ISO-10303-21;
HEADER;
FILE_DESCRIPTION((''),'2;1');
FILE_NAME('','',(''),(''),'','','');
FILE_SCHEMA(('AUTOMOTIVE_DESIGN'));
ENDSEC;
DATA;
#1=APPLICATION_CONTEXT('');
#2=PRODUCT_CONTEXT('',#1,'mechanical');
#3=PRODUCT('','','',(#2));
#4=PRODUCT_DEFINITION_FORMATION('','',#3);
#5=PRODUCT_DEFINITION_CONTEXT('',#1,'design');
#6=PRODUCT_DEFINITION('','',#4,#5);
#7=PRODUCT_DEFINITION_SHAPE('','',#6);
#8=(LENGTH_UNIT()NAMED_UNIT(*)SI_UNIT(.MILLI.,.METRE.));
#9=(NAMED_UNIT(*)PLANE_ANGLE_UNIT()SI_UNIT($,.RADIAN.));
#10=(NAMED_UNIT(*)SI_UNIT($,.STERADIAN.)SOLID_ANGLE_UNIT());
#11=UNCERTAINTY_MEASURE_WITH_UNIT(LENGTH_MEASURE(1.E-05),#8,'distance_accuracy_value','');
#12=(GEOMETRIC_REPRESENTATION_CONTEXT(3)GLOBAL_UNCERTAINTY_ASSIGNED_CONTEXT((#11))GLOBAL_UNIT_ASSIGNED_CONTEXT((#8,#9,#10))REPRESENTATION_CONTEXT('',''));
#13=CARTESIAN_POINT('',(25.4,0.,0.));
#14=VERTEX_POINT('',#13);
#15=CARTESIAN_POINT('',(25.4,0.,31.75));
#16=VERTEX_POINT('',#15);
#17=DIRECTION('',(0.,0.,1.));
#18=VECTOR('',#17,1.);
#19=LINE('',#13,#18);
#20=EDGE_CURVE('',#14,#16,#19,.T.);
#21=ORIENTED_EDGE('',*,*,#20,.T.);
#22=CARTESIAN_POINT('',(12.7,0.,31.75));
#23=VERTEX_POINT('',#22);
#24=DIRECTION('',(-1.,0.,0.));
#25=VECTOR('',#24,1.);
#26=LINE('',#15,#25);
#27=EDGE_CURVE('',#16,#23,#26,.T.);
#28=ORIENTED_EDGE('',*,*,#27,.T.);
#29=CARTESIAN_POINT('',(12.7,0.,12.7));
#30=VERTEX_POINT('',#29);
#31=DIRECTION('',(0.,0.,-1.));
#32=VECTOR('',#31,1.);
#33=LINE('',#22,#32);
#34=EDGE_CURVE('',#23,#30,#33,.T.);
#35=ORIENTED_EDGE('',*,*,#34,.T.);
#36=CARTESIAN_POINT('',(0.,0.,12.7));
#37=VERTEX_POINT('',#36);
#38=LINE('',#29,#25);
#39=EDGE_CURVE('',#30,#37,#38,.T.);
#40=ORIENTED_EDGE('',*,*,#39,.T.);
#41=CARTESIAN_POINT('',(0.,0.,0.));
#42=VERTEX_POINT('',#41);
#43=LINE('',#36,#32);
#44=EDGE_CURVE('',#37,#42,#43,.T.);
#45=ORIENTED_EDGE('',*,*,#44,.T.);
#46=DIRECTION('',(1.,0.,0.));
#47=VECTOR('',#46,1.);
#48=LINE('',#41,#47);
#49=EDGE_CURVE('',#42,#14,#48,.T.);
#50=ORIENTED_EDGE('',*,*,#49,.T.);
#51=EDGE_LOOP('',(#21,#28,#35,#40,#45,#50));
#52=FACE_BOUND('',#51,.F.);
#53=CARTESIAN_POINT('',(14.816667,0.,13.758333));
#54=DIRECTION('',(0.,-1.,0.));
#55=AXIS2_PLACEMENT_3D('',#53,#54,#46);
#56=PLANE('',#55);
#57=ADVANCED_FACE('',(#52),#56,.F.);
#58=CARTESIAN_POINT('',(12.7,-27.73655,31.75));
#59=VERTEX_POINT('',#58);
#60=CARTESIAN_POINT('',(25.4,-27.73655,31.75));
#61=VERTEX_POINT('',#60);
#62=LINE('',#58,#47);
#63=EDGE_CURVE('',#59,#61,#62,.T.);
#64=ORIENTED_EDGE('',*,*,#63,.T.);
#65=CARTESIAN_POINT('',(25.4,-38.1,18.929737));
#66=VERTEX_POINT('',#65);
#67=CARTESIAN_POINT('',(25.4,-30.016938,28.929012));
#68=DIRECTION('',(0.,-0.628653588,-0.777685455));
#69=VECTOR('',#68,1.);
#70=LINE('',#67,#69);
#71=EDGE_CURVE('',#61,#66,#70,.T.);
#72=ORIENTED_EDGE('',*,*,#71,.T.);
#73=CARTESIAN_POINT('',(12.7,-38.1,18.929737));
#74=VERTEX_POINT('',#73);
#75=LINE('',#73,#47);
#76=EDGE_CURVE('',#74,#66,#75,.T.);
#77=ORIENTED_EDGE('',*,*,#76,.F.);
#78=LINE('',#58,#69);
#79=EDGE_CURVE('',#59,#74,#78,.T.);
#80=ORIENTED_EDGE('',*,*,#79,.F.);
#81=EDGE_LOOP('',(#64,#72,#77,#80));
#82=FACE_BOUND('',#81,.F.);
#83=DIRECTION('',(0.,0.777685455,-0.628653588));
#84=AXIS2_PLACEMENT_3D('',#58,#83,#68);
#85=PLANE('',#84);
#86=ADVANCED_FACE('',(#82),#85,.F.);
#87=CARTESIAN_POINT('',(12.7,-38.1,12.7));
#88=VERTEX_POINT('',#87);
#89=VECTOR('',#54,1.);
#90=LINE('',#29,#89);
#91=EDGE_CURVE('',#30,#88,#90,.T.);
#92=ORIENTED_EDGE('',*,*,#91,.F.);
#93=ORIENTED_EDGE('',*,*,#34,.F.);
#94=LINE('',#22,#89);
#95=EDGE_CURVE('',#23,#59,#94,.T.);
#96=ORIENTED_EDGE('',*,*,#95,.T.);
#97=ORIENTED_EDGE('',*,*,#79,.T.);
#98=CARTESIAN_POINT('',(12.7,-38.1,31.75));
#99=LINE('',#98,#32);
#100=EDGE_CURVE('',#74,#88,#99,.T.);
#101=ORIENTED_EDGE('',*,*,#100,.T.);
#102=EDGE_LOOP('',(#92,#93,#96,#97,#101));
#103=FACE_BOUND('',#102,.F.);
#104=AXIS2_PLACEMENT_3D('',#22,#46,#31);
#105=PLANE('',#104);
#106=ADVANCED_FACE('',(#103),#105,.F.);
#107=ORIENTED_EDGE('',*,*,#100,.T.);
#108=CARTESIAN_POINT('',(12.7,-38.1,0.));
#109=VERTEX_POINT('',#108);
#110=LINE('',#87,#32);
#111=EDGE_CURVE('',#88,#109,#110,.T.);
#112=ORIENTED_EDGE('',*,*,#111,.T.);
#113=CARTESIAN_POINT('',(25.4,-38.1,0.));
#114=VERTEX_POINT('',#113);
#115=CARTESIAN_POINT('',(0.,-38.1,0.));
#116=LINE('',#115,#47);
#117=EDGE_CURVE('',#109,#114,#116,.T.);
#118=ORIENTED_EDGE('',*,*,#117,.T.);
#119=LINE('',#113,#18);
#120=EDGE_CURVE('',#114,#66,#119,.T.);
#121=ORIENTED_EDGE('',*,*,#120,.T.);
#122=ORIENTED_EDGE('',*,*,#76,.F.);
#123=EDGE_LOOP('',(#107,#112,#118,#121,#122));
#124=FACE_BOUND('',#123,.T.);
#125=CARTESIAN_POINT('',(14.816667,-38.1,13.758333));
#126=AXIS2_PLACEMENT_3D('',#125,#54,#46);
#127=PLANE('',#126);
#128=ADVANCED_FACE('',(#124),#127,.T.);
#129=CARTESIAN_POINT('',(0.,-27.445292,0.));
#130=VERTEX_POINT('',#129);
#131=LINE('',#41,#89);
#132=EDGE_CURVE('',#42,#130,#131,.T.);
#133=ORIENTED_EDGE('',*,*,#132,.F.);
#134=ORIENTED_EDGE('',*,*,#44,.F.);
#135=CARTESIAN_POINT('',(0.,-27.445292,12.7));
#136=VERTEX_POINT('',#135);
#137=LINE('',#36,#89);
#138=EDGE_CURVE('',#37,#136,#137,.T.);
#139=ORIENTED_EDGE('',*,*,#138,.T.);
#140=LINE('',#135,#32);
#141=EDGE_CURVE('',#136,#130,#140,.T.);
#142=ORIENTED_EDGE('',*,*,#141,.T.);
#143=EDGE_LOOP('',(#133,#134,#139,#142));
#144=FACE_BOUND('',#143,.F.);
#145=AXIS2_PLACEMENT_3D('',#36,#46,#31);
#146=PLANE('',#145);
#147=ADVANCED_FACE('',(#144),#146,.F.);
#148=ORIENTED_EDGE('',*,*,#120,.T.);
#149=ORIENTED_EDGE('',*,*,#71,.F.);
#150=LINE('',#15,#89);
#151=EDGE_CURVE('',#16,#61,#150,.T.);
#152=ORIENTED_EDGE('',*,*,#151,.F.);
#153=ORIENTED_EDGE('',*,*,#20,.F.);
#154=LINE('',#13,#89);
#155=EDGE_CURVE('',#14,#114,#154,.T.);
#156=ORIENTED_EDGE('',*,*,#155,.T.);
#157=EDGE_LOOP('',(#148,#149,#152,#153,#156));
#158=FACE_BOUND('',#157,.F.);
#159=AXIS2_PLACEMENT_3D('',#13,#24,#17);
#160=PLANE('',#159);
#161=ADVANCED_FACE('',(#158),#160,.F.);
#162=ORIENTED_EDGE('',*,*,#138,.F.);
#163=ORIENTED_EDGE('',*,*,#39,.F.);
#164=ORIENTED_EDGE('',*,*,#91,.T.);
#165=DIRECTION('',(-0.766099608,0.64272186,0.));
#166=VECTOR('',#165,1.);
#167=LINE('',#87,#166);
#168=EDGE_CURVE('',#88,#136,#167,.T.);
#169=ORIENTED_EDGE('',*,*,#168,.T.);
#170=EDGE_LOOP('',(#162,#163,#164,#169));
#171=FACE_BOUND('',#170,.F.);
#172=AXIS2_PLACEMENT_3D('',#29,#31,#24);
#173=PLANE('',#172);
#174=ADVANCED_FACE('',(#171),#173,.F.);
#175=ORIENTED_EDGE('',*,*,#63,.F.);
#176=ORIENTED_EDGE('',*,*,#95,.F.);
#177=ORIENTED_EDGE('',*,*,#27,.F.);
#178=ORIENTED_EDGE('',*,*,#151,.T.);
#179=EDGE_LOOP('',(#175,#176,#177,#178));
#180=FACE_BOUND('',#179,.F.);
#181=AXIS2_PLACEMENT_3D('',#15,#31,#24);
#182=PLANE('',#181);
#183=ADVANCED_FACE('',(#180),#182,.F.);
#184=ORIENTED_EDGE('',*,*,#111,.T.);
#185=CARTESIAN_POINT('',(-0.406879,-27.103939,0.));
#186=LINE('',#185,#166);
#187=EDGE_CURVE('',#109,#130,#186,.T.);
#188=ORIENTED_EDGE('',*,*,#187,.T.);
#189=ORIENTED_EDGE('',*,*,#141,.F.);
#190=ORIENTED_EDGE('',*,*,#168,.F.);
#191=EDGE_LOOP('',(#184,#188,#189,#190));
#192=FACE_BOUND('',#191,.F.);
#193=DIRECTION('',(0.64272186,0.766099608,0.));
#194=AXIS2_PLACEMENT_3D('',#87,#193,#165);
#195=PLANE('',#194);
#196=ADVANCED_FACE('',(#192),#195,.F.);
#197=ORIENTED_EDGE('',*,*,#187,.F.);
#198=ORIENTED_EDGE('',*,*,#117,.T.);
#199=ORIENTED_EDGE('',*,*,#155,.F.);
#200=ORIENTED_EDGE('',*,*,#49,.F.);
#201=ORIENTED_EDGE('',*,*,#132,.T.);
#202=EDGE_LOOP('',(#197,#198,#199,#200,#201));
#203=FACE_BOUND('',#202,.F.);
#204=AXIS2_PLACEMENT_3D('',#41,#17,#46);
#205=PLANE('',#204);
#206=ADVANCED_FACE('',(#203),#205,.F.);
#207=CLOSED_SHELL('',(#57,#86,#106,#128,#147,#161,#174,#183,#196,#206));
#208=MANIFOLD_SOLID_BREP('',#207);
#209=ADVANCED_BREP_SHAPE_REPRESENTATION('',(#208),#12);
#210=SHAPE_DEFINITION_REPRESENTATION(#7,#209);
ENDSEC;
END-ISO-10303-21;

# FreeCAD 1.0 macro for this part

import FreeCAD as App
import Part
import Sketcher

V = App.Vector
Q = App.Units.Quantity

doc = App.newDocument("Part")
params = doc.addObject("Spreadsheet::Sheet", "Params")
for row, (alias, value) in enumerate([
    ("sketch1_width", "1 in"),
    ("sketch1_height", "1.25 in"),
    ("pad1_length", "1.5 in"),
    ("sketch2_width", "0.5 in"),
    ("pocket1_length", "1 in"),
    ("pocket2_length", "1 in"),
], start=1):
    params.set(f"A{row}", alias)
    params.set(f"B{row}", "=" + value)
    params.setAlias(f"B{row}", alias)

body = doc.addObject("PartDesign::Body", "Body")

# Sketch on XZ plane
sketch1 = doc.addObject("Sketcher::SketchObject", "Sketch")
body.addObject(sketch1)
sketch1.AttachmentSupport = (doc.XZ_Plane, [""])
sketch1.MapMode = "FlatFace"
sketch1.addGeometry([
    Part.LineSegment(V(0, 13, 0), V(0, 0, 0)),  # 0
    Part.LineSegment(V(0, 0, 0), V(25, 0, 0)),  # 1
    Part.LineSegment(V(25, 0, 0), V(25, 32, 0)),  # 2
    Part.LineSegment(V(25, 32, 0), V(13, 32, 0)),  # 3
    Part.LineSegment(V(13, 32, 0), V(13, 13, 0)),  # 4
    Part.LineSegment(V(13, 13, 0), V(0, 13, 0)),  # 5
], False)
sketch1.addConstraint([
    Sketcher.Constraint("Coincident", 0, 2, 1, 1),
    Sketcher.Constraint("Coincident", 1, 2, 2, 1),
    Sketcher.Constraint("Coincident", 2, 2, 3, 1),
    Sketcher.Constraint("Coincident", 3, 2, 4, 1),
    Sketcher.Constraint("Coincident", 4, 2, 5, 1),
    Sketcher.Constraint("Coincident", 5, 2, 0, 1),
    Sketcher.Constraint("Vertical", 0),
    Sketcher.Constraint("Horizontal", 1),
    Sketcher.Constraint("Vertical", 2),
    Sketcher.Constraint("Horizontal", 3),
    Sketcher.Constraint("Vertical", 4),
    Sketcher.Constraint("Horizontal", 5),
    Sketcher.Constraint("Coincident", 0, 2, -1, 1),
    Sketcher.Constraint("Equal", 3, 5),
    Sketcher.Constraint("Equal", 5, 0),
    Sketcher.Constraint("DistanceX", 1, 1, 1, 2, Q("1 in")),
    Sketcher.Constraint("DistanceY", 2, 1, 2, 2, Q("1.25 in")),
])
sketch1.setExpression("Constraints[15]", "Params.sketch1_width")
sketch1.setExpression("Constraints[16]", "Params.sketch1_height")
pad1 = doc.addObject("PartDesign::Pad", "Pad")
body.addObject(pad1)
pad1.Profile = sketch1
pad1.setExpression("Length", "Params.pad1_length")

# Sketch on XY plane
sketch2 = doc.addObject("Sketcher::SketchObject", "Sketch001")
body.addObject(sketch2)
sketch2.AttachmentSupport = (doc.XY_Plane, [""])
sketch2.MapMode = "FlatFace"
sketch2.AttachmentOffset = App.Placement(V(0, 0, 0.5 * 25.4), App.Rotation())
sketch2.addGeometry([
    Part.LineSegment(V(0, -38, 0), V(13, -38, 0)),
    Part.LineSegment(V(13, -38, 0), V(0, -27, 0)),
    Part.LineSegment(V(0, -27, 0), V(0, -38, 0)),
], False)
sketch2.addConstraint([
    Sketcher.Constraint("Coincident", 0, 2, 1, 1),
    Sketcher.Constraint("Coincident", 1, 2, 2, 1),
    Sketcher.Constraint("Coincident", 2, 2, 0, 1),
    Sketcher.Constraint("Horizontal", 0),
    Sketcher.Constraint("Vertical", 2),
    Sketcher.Constraint("PointOnObject", 1, 2, -2),
    Sketcher.Constraint("DistanceX", 0, 1, 0, 2, Q("0.5 in")),
    Sketcher.Constraint("DistanceY", 0, 2, -1, 1, Q("1.5 in")),
    Sketcher.Constraint("DistanceY", 2, 2, 2, 1, 10.654708),
])
sketch2.setExpression("Constraints[6]", "Params.sketch2_width")
pocket1 = doc.addObject("PartDesign::Pocket", "Pocket")
body.addObject(pocket1)
pocket1.Profile = sketch2
pocket1.setExpression("Length", "Params.pocket1_length")

# Sketch on YZ plane
sketch3 = doc.addObject("Sketcher::SketchObject", "Sketch002")
body.addObject(sketch3)
sketch3.AttachmentSupport = (doc.YZ_Plane, [""])
sketch3.MapMode = "FlatFace"
sketch3.AttachmentOffset = App.Placement(V(0, 0, 0.5 * 25.4), App.Rotation())
sketch3.addGeometry([
    Part.LineSegment(V(-28, 32, 0), V(-38, 19, 0)),
    Part.LineSegment(V(-38, 19, 0), V(-38, 32, 0)),
    Part.LineSegment(V(-38, 32, 0), V(-28, 32, 0)),
], False)
sketch3.addConstraint([
    Sketcher.Constraint("Coincident", 0, 2, 1, 1),
    Sketcher.Constraint("Coincident", 1, 2, 2, 1),
    Sketcher.Constraint("Coincident", 2, 2, 0, 1),
    Sketcher.Constraint("Vertical", 1),
    Sketcher.Constraint("Horizontal", 2),
    Sketcher.Constraint("DistanceX", 0, 2, -1, 1, Q("1.5 in")),
    Sketcher.Constraint("DistanceY", -1, 1, 1, 2, Q("1.25 in")),
    Sketcher.Constraint("DistanceX", 2, 1, 2, 2, 10.36345),
    Sketcher.Constraint("DistanceY", 1, 1, 1, 2, 12.820263),
])
pocket2 = doc.addObject("PartDesign::Pocket", "Pocket001")
body.addObject(pocket2)
pocket2.Profile = sketch3
pocket2.setExpression("Length", "Params.pocket2_length")
pocket2.Reversed = True

doc.recompute()
